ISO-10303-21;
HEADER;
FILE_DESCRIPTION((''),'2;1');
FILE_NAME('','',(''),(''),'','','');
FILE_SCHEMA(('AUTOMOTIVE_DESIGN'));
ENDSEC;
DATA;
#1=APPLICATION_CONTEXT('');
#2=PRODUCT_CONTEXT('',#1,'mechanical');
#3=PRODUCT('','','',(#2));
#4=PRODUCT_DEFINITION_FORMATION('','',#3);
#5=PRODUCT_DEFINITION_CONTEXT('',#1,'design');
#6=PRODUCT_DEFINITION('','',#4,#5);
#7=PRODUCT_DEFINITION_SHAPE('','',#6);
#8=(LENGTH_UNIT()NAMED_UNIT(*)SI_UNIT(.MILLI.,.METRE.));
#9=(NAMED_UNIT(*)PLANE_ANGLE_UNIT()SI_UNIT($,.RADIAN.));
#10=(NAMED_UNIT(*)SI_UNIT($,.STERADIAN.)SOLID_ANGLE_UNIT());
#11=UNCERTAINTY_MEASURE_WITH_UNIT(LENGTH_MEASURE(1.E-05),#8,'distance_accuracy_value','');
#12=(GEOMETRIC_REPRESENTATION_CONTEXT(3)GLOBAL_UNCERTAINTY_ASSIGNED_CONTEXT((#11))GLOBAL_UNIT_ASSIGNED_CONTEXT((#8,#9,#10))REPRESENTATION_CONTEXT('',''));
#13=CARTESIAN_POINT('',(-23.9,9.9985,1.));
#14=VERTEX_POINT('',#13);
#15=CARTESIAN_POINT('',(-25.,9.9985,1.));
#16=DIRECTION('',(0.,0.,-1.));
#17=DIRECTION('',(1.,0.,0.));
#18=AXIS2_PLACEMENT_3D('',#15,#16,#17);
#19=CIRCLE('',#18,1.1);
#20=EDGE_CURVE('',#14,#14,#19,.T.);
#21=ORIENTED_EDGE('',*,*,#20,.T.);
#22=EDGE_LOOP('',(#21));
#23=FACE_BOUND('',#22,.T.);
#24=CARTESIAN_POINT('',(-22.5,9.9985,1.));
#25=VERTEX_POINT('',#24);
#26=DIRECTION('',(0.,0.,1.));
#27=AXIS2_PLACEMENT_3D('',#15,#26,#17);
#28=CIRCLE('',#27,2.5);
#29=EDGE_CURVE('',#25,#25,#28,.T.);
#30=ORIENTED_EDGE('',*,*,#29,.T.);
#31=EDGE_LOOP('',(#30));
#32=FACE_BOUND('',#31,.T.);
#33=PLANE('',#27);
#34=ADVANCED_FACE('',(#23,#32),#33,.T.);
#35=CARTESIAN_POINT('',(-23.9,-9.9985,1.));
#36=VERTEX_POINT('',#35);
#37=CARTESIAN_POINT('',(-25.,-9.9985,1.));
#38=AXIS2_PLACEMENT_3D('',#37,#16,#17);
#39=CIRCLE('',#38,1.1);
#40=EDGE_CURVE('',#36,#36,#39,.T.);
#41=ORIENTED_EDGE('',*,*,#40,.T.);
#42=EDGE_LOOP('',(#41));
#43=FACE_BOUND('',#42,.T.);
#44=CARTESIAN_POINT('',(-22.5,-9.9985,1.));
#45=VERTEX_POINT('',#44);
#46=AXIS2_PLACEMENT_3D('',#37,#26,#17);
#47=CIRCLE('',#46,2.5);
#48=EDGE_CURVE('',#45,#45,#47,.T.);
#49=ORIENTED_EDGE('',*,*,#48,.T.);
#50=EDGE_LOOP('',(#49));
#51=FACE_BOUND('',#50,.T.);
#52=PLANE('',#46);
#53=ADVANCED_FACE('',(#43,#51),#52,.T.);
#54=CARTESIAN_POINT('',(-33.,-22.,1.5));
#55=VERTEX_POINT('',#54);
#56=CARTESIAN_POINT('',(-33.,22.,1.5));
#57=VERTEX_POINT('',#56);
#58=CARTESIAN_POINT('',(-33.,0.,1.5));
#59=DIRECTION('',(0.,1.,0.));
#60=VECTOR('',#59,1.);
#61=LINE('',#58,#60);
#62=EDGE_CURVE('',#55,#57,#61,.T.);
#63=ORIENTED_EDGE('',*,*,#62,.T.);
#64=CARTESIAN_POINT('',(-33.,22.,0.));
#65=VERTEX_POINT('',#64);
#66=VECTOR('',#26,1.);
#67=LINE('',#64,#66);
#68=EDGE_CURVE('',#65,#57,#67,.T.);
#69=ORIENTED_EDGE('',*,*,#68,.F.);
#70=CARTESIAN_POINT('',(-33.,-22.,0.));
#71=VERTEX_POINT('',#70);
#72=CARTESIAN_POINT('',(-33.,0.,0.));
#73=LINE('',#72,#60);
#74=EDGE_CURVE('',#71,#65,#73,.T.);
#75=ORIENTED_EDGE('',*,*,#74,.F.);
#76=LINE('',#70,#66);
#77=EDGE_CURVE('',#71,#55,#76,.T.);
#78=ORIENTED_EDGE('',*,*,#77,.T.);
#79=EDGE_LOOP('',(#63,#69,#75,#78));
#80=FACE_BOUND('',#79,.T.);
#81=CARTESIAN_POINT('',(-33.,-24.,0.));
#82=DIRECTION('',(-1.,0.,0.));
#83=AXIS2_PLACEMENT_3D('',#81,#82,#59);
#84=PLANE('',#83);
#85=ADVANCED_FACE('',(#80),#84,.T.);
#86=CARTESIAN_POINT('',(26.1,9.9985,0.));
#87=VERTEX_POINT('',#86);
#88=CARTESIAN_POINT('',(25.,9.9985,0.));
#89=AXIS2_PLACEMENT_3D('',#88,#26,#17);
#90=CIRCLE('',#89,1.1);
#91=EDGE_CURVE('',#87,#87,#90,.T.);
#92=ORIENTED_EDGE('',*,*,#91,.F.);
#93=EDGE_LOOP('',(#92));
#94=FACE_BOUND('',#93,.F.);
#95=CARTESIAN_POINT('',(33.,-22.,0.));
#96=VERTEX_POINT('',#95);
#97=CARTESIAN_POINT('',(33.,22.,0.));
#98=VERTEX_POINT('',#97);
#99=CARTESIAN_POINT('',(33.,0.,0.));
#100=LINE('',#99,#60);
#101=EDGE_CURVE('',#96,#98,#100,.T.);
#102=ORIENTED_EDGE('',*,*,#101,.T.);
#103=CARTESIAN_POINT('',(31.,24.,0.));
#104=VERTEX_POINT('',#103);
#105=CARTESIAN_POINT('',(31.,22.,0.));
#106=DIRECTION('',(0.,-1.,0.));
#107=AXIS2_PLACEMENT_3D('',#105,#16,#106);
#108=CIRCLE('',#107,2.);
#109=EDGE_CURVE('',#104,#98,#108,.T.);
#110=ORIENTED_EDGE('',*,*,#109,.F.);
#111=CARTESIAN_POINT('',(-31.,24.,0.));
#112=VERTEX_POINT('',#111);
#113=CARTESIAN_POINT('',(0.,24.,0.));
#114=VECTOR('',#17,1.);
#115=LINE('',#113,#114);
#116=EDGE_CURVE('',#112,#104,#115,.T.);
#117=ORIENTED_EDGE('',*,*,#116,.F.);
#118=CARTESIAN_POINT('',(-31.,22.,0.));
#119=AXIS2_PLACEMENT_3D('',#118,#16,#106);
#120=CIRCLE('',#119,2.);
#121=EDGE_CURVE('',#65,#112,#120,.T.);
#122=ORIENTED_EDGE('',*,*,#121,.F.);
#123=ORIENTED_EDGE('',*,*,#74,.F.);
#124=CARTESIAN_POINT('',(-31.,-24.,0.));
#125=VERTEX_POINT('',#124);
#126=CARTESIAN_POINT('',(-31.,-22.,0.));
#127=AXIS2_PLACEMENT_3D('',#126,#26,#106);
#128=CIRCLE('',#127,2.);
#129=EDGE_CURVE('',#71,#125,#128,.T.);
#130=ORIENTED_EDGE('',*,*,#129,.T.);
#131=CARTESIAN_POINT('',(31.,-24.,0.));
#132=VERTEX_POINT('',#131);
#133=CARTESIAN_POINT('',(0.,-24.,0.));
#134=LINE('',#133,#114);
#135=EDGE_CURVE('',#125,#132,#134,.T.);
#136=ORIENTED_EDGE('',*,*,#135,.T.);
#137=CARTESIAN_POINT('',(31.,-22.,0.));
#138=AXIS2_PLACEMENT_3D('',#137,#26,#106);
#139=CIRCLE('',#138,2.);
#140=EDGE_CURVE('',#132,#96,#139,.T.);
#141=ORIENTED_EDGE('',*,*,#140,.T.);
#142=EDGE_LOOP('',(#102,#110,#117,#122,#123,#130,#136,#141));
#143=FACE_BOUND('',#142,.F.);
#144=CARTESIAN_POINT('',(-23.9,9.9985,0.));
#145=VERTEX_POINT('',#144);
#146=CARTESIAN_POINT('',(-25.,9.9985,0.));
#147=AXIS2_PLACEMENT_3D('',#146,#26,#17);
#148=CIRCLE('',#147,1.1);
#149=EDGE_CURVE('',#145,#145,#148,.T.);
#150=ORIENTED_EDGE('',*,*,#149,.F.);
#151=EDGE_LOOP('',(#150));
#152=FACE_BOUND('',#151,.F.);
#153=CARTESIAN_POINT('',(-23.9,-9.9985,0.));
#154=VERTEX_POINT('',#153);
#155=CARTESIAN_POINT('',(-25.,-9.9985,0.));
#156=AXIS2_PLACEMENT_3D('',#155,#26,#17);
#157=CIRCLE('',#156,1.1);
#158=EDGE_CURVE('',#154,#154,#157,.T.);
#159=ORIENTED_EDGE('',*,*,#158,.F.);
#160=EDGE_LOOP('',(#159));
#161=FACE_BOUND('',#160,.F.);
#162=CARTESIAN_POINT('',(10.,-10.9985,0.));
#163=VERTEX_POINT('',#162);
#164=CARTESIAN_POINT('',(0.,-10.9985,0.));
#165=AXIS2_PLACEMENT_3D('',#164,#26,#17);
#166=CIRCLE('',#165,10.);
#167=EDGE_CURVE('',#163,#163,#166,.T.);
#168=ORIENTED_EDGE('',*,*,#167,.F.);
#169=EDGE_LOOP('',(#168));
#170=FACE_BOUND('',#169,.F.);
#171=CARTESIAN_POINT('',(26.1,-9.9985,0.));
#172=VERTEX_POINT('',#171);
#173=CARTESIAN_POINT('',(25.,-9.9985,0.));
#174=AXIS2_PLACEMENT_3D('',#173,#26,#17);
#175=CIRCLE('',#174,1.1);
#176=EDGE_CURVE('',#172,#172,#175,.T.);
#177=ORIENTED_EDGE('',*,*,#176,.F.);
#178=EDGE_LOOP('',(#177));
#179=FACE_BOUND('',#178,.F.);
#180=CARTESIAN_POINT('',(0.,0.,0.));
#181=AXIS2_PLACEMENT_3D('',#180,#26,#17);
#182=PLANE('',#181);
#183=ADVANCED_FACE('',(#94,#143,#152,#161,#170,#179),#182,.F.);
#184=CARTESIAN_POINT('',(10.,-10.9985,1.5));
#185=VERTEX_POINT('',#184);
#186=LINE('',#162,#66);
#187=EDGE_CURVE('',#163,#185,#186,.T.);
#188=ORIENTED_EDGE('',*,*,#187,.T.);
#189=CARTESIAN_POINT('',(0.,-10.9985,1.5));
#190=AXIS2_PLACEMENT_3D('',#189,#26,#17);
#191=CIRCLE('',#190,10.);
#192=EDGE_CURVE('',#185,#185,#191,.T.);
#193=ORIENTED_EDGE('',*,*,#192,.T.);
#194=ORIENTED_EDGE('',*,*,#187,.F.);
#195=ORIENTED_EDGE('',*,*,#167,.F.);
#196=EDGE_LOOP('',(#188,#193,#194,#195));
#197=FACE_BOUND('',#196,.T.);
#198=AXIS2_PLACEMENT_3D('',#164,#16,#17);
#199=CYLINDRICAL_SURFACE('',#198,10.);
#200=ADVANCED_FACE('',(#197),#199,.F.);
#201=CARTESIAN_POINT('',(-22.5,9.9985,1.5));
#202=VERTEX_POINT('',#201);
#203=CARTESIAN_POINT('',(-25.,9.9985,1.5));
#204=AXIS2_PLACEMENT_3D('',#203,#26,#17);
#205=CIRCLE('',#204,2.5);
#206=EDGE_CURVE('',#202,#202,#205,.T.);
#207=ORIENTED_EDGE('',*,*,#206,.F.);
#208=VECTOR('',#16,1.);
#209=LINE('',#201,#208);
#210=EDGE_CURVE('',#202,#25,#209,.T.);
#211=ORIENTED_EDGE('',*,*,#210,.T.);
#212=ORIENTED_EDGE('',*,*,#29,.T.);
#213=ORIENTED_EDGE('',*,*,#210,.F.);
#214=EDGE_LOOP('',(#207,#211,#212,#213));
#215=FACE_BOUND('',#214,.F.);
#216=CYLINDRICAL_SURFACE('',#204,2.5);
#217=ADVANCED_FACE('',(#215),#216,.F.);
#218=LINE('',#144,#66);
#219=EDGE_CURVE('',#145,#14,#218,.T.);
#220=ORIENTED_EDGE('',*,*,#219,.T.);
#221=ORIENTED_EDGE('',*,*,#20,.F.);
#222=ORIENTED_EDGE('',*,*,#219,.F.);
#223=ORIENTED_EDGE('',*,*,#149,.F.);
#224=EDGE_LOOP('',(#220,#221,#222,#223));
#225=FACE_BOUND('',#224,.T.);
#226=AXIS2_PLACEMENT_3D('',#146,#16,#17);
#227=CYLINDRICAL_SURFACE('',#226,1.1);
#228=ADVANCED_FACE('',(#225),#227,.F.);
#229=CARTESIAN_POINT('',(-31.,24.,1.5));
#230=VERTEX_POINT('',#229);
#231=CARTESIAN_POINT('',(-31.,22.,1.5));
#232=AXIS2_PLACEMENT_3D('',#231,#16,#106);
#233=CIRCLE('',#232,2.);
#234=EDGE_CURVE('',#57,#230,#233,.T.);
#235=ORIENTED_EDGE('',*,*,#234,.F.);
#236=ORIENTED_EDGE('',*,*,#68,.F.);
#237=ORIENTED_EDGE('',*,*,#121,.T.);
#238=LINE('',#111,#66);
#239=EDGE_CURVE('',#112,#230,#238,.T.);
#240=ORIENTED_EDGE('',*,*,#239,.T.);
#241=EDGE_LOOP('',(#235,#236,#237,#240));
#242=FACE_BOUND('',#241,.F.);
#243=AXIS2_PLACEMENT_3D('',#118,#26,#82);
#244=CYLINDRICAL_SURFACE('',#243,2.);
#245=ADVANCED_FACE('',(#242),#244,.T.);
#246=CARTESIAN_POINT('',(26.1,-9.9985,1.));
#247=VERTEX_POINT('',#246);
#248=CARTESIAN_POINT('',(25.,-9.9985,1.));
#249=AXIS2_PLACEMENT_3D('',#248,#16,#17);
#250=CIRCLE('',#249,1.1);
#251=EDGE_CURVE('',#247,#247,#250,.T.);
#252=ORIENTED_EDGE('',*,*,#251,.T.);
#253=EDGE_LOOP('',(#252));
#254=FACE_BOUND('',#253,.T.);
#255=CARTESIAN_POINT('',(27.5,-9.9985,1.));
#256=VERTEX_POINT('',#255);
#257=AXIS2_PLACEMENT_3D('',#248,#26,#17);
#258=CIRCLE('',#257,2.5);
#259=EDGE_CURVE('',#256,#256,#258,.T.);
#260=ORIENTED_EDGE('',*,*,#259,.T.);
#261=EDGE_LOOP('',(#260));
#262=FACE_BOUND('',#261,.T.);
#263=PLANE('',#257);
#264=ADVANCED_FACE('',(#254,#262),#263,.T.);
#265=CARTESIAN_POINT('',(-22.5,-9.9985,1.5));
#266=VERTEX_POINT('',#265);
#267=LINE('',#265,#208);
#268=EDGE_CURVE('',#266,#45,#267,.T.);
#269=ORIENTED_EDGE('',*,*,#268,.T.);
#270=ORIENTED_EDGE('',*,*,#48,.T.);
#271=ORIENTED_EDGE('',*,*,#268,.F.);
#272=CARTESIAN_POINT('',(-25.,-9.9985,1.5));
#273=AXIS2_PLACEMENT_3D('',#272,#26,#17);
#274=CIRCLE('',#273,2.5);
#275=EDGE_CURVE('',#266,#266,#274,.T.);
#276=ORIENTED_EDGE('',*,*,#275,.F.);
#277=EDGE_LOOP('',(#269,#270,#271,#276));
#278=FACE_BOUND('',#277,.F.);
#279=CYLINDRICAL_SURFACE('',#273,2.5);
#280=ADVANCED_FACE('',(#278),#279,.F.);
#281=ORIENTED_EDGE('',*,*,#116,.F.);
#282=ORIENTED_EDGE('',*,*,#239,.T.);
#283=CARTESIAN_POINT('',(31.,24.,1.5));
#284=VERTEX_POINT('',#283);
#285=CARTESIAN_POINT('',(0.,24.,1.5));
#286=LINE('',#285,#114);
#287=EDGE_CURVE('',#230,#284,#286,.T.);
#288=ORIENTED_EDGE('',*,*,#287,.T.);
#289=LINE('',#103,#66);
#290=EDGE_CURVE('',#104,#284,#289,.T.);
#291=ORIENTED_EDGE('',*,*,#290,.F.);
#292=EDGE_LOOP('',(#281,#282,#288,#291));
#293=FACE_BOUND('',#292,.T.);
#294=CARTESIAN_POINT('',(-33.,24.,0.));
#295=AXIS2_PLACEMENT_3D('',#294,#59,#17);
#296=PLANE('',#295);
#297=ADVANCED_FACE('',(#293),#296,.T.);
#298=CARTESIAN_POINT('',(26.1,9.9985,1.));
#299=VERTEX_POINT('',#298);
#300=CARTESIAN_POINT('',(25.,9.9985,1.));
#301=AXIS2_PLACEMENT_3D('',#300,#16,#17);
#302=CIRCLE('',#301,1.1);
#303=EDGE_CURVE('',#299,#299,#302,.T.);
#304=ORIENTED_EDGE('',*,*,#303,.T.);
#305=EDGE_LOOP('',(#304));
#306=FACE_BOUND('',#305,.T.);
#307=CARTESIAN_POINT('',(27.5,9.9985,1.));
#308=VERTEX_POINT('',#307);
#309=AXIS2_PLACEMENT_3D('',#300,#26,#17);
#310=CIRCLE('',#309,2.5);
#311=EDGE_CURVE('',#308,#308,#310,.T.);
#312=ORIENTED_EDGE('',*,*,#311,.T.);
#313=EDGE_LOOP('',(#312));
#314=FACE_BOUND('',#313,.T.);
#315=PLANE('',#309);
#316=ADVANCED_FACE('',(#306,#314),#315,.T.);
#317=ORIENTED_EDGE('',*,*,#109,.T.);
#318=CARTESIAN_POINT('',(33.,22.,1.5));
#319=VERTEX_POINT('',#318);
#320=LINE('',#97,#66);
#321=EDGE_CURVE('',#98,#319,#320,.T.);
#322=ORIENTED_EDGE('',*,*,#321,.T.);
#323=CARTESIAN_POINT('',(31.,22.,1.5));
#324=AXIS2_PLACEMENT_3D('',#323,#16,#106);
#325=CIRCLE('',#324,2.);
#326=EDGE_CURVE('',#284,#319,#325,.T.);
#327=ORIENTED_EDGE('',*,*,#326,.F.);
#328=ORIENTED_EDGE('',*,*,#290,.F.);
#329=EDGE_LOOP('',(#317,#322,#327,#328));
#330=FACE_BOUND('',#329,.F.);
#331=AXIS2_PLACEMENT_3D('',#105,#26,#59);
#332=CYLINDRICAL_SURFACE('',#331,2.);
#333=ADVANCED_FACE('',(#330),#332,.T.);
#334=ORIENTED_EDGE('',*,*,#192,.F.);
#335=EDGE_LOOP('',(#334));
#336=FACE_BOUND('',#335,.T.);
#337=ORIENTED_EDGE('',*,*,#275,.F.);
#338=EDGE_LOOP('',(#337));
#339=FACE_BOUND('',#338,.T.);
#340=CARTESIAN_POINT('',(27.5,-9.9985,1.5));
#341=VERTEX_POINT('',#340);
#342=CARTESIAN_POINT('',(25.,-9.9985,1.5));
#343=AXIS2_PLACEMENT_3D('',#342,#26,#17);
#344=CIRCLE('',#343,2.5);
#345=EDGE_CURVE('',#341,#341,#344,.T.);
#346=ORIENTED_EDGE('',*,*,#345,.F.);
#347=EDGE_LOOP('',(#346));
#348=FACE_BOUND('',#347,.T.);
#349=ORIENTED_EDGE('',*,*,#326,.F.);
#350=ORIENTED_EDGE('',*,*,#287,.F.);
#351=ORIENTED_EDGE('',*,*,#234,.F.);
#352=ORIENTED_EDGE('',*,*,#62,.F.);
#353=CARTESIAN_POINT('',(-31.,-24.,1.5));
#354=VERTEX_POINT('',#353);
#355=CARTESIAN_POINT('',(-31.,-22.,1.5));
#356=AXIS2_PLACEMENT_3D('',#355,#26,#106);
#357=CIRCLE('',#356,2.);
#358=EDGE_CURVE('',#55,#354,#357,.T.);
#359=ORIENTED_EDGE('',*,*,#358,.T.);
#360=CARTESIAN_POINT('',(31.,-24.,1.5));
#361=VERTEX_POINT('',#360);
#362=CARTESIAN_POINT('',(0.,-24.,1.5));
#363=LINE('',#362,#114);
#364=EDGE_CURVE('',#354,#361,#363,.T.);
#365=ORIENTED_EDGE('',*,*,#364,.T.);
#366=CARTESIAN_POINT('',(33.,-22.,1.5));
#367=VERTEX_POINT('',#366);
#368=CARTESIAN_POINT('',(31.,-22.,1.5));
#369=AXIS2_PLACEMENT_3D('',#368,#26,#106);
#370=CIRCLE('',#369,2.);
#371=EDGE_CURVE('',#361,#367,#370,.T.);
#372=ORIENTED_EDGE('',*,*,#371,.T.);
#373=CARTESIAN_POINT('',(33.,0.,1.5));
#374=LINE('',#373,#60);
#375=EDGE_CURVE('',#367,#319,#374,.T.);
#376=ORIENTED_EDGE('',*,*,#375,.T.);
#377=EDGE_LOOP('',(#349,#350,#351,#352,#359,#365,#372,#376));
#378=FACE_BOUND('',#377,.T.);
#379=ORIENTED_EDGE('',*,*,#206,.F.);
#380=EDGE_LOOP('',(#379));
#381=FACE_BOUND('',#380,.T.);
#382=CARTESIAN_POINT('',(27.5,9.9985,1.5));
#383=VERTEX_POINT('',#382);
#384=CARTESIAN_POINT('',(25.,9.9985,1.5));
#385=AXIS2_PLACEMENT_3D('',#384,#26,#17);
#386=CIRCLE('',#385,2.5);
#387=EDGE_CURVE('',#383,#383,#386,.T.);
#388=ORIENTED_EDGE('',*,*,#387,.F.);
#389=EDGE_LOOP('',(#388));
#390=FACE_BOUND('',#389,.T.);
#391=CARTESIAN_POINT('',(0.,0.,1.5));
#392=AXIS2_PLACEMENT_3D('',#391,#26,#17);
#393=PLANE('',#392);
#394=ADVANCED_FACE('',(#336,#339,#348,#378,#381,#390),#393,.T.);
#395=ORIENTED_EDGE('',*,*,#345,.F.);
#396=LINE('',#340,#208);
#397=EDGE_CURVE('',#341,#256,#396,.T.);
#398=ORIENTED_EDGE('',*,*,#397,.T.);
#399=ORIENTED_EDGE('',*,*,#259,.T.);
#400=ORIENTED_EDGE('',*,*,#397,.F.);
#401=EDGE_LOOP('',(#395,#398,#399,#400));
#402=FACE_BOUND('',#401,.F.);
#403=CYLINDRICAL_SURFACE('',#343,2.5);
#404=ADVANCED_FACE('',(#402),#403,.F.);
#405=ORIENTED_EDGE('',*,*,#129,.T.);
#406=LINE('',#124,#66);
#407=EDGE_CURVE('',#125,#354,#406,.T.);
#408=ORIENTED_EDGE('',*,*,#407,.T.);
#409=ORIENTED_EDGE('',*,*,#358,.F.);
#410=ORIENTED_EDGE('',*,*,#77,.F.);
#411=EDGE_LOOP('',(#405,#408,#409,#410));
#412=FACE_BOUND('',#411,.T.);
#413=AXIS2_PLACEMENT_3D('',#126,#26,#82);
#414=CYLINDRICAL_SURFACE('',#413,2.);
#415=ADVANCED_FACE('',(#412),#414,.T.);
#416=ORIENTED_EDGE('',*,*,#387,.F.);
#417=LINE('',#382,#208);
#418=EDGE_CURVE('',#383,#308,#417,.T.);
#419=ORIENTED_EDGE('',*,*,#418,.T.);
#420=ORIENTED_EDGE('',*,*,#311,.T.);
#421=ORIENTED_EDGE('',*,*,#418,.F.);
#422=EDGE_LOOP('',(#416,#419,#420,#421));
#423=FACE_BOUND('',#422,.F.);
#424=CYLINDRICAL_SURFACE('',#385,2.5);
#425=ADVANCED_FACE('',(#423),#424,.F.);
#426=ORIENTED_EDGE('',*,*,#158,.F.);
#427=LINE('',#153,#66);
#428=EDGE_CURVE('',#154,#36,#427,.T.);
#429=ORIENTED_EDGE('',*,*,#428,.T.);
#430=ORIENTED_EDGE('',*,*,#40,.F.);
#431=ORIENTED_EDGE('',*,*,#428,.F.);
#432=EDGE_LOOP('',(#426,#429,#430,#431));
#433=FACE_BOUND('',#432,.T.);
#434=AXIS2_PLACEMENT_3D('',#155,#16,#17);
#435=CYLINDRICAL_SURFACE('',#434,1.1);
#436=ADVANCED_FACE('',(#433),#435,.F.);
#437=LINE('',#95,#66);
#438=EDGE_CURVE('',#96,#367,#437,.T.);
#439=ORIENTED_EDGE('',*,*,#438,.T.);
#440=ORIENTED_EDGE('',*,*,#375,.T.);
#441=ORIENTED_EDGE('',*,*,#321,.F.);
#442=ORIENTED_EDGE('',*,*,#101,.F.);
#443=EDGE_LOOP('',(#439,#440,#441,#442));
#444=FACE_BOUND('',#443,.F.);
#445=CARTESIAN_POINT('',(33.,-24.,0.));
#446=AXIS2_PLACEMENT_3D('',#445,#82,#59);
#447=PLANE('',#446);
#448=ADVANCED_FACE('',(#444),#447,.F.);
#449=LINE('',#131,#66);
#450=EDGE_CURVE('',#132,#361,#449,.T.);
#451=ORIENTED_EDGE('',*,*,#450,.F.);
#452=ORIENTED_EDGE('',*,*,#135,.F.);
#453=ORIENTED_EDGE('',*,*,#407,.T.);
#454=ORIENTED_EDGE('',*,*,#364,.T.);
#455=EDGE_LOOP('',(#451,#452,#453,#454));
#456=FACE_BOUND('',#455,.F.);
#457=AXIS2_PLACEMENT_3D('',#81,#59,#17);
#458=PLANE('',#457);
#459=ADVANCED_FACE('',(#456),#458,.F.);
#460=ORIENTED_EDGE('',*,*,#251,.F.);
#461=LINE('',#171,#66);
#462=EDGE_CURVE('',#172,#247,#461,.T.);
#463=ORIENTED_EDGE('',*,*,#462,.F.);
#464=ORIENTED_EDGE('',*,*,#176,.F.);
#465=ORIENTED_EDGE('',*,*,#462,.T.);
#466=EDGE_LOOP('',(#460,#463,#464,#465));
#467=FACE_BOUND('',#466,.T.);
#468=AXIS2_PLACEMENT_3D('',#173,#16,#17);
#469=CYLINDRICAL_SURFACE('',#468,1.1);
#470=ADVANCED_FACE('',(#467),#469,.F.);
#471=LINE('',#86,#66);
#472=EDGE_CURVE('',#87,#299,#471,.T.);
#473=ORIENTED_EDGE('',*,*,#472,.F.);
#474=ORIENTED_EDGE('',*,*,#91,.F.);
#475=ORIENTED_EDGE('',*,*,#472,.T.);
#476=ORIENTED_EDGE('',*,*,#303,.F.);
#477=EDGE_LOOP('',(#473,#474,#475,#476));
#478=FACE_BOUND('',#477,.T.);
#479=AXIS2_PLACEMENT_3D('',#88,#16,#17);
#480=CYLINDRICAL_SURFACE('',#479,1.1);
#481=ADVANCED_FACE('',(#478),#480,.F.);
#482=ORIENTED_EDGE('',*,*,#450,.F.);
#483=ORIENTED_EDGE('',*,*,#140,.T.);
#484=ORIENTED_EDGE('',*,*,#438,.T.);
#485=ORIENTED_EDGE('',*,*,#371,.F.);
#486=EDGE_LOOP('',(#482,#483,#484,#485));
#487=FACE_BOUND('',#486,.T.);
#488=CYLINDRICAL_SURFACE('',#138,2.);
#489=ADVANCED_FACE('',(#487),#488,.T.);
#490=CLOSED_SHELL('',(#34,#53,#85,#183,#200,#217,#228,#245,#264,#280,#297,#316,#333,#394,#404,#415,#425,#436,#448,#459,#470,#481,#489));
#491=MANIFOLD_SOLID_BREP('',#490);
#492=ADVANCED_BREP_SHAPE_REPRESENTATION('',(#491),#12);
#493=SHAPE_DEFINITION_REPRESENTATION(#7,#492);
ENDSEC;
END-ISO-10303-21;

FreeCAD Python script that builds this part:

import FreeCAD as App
import Part
import Sketcher


def edges_at(feature, points):
    """Names of the edges that pass closest to the given points."""
    edges = feature.Shape.Edges
    near = lambda p: min(range(len(edges)), key=lambda i: edges[i].distToShape(Part.Vertex(*p))[0])
    return sorted({f"Edge{near(p) + 1}" for p in points})


def add_polygon(sketch, points):
    """Adds a closed chain of lines whose ends are joined by coincident constraints."""
    first, n = sketch.GeometryCount, len(points)
    for a, b in zip(points, points[1:] + points[:1]):
        sketch.addGeometry(Part.LineSegment(App.Vector(*a, 0), App.Vector(*b, 0)), False)
    for i in range(n):
        sketch.addConstraint(Sketcher.Constraint("Coincident", first + i, 2, first + (i + 1) % n, 1))

doc = App.newDocument("Part")
body = doc.addObject("PartDesign::Body", "Body")

# Sketch on XY plane
sketch1 = body.newObject("Sketcher::SketchObject", "Sketch")
sketch1.AttachmentSupport = (doc.getObject("XY_Plane"), [""])
sketch1.MapMode = "FlatFace"
add_polygon(sketch1, [(-33, 24), (-33, -24), (33, -24), (33, 24)])  # lines 0-3
sketch1.addGeometry(Part.Circle(App.Vector(-25, -9.9985, 0), App.Vector(0, 0, 1), 1.1), False)  # 4
sketch1.addGeometry(Part.Circle(App.Vector(0, -10.9985, 0), App.Vector(0, 0, 1), 10), False)  # 5
sketch1.addGeometry(Part.Circle(App.Vector(25, -9.9985, 0), App.Vector(0, 0, 1), 1.1), False)  # 6
sketch1.addGeometry(Part.Circle(App.Vector(-25, 9.9985, 0), App.Vector(0, 0, 1), 1.1), False)  # 7
sketch1.addGeometry(Part.Circle(App.Vector(25, 9.9985, 0), App.Vector(0, 0, 1), 1.1), False)  # 8
sketch1.addConstraint([
    Sketcher.Constraint("Vertical", 0),
    Sketcher.Constraint("Horizontal", 1),
    Sketcher.Constraint("Vertical", 2),
    Sketcher.Constraint("Horizontal", 3),
    Sketcher.Constraint("Equal", 4, 6),
    Sketcher.Constraint("Equal", 6, 7),
    Sketcher.Constraint("Equal", 7, 8),
    Sketcher.Constraint("Symmetric", 6, 3, 7, 3, -1, 1),
    Sketcher.Constraint("Symmetric", 4, 3, 8, 3, -1, 1),
    Sketcher.Constraint("Symmetric", 0, 2, 2, 2, -1, 1),
    Sketcher.Constraint("Symmetric", 4, 3, 6, 3, -2),
    Sketcher.Constraint("PointOnObject", 5, 3, -2),
    Sketcher.Constraint("Diameter", 5, 20.0),
    Sketcher.Constraint("Diameter", 4, 2.2),
    Sketcher.Constraint("DistanceX", 1, 1, 1, 2, 66.0),
    Sketcher.Constraint("DistanceY", 0, 2, 0, 1, 48.0),
    Sketcher.Constraint("DistanceX", 4, 3, -1, 1, 25.0),
    Sketcher.Constraint("DistanceY", 5, 3, 4, 3, 1.0),
    Sketcher.Constraint("DistanceY", 4, 3, 7, 3, 19.997),
])
pad1 = body.newObject("PartDesign::Pad", "Pad")
pad1.Profile = sketch1
pad1.Length = 1.5
doc.recompute()

fillet = body.newObject("PartDesign::Fillet", "Fillet")
fillet.Base = (pad1, edges_at(pad1, [
    (-33, -24, 0.75),
    (33, -24, 0.75),
    (-33, 24, 0.75),
    (33, 24, 0.75),
]))
fillet.Radius = 2

# Sketch on XY plane
sketch2 = body.newObject("Sketcher::SketchObject", "Sketch001")
sketch2.AttachmentSupport = (doc.getObject("XY_Plane"), [""])
sketch2.MapMode = "FlatFace"
sketch2.AttachmentOffset = App.Placement(App.Vector(0, 0, 1.5), App.Rotation())
sketch2.addGeometry([
    Part.Circle(App.Vector(-25, 9.9985, 0), App.Vector(0, 0, 1), 2.5),
    Part.Circle(App.Vector(25, 9.9985, 0), App.Vector(0, 0, 1), 2.5),
    Part.Circle(App.Vector(-25, -9.9985, 0), App.Vector(0, 0, 1), 2.5),
    Part.Circle(App.Vector(25, -9.9985, 0), App.Vector(0, 0, 1), 2.5),
], False)
sketch2.addConstraint([
    Sketcher.Constraint("Equal", 0, 1),
    Sketcher.Constraint("Equal", 1, 2),
    Sketcher.Constraint("Equal", 2, 3),
    Sketcher.Constraint("Symmetric", 1, 3, 2, 3, -1, 1),
    Sketcher.Constraint("Symmetric", 0, 3, 3, 3, -1, 1),
    Sketcher.Constraint("Symmetric", 0, 3, 1, 3, -2),
    Sketcher.Constraint("Diameter", 0, 5.0),
    Sketcher.Constraint("DistanceX", 0, 3, -1, 1, 25.0),
    Sketcher.Constraint("DistanceY", 2, 3, 0, 3, 19.997),
])
pocket1 = body.newObject("PartDesign::Pocket", "Pocket")
pocket1.Profile = sketch2
pocket1.Length = 0.5

doc.recompute()
